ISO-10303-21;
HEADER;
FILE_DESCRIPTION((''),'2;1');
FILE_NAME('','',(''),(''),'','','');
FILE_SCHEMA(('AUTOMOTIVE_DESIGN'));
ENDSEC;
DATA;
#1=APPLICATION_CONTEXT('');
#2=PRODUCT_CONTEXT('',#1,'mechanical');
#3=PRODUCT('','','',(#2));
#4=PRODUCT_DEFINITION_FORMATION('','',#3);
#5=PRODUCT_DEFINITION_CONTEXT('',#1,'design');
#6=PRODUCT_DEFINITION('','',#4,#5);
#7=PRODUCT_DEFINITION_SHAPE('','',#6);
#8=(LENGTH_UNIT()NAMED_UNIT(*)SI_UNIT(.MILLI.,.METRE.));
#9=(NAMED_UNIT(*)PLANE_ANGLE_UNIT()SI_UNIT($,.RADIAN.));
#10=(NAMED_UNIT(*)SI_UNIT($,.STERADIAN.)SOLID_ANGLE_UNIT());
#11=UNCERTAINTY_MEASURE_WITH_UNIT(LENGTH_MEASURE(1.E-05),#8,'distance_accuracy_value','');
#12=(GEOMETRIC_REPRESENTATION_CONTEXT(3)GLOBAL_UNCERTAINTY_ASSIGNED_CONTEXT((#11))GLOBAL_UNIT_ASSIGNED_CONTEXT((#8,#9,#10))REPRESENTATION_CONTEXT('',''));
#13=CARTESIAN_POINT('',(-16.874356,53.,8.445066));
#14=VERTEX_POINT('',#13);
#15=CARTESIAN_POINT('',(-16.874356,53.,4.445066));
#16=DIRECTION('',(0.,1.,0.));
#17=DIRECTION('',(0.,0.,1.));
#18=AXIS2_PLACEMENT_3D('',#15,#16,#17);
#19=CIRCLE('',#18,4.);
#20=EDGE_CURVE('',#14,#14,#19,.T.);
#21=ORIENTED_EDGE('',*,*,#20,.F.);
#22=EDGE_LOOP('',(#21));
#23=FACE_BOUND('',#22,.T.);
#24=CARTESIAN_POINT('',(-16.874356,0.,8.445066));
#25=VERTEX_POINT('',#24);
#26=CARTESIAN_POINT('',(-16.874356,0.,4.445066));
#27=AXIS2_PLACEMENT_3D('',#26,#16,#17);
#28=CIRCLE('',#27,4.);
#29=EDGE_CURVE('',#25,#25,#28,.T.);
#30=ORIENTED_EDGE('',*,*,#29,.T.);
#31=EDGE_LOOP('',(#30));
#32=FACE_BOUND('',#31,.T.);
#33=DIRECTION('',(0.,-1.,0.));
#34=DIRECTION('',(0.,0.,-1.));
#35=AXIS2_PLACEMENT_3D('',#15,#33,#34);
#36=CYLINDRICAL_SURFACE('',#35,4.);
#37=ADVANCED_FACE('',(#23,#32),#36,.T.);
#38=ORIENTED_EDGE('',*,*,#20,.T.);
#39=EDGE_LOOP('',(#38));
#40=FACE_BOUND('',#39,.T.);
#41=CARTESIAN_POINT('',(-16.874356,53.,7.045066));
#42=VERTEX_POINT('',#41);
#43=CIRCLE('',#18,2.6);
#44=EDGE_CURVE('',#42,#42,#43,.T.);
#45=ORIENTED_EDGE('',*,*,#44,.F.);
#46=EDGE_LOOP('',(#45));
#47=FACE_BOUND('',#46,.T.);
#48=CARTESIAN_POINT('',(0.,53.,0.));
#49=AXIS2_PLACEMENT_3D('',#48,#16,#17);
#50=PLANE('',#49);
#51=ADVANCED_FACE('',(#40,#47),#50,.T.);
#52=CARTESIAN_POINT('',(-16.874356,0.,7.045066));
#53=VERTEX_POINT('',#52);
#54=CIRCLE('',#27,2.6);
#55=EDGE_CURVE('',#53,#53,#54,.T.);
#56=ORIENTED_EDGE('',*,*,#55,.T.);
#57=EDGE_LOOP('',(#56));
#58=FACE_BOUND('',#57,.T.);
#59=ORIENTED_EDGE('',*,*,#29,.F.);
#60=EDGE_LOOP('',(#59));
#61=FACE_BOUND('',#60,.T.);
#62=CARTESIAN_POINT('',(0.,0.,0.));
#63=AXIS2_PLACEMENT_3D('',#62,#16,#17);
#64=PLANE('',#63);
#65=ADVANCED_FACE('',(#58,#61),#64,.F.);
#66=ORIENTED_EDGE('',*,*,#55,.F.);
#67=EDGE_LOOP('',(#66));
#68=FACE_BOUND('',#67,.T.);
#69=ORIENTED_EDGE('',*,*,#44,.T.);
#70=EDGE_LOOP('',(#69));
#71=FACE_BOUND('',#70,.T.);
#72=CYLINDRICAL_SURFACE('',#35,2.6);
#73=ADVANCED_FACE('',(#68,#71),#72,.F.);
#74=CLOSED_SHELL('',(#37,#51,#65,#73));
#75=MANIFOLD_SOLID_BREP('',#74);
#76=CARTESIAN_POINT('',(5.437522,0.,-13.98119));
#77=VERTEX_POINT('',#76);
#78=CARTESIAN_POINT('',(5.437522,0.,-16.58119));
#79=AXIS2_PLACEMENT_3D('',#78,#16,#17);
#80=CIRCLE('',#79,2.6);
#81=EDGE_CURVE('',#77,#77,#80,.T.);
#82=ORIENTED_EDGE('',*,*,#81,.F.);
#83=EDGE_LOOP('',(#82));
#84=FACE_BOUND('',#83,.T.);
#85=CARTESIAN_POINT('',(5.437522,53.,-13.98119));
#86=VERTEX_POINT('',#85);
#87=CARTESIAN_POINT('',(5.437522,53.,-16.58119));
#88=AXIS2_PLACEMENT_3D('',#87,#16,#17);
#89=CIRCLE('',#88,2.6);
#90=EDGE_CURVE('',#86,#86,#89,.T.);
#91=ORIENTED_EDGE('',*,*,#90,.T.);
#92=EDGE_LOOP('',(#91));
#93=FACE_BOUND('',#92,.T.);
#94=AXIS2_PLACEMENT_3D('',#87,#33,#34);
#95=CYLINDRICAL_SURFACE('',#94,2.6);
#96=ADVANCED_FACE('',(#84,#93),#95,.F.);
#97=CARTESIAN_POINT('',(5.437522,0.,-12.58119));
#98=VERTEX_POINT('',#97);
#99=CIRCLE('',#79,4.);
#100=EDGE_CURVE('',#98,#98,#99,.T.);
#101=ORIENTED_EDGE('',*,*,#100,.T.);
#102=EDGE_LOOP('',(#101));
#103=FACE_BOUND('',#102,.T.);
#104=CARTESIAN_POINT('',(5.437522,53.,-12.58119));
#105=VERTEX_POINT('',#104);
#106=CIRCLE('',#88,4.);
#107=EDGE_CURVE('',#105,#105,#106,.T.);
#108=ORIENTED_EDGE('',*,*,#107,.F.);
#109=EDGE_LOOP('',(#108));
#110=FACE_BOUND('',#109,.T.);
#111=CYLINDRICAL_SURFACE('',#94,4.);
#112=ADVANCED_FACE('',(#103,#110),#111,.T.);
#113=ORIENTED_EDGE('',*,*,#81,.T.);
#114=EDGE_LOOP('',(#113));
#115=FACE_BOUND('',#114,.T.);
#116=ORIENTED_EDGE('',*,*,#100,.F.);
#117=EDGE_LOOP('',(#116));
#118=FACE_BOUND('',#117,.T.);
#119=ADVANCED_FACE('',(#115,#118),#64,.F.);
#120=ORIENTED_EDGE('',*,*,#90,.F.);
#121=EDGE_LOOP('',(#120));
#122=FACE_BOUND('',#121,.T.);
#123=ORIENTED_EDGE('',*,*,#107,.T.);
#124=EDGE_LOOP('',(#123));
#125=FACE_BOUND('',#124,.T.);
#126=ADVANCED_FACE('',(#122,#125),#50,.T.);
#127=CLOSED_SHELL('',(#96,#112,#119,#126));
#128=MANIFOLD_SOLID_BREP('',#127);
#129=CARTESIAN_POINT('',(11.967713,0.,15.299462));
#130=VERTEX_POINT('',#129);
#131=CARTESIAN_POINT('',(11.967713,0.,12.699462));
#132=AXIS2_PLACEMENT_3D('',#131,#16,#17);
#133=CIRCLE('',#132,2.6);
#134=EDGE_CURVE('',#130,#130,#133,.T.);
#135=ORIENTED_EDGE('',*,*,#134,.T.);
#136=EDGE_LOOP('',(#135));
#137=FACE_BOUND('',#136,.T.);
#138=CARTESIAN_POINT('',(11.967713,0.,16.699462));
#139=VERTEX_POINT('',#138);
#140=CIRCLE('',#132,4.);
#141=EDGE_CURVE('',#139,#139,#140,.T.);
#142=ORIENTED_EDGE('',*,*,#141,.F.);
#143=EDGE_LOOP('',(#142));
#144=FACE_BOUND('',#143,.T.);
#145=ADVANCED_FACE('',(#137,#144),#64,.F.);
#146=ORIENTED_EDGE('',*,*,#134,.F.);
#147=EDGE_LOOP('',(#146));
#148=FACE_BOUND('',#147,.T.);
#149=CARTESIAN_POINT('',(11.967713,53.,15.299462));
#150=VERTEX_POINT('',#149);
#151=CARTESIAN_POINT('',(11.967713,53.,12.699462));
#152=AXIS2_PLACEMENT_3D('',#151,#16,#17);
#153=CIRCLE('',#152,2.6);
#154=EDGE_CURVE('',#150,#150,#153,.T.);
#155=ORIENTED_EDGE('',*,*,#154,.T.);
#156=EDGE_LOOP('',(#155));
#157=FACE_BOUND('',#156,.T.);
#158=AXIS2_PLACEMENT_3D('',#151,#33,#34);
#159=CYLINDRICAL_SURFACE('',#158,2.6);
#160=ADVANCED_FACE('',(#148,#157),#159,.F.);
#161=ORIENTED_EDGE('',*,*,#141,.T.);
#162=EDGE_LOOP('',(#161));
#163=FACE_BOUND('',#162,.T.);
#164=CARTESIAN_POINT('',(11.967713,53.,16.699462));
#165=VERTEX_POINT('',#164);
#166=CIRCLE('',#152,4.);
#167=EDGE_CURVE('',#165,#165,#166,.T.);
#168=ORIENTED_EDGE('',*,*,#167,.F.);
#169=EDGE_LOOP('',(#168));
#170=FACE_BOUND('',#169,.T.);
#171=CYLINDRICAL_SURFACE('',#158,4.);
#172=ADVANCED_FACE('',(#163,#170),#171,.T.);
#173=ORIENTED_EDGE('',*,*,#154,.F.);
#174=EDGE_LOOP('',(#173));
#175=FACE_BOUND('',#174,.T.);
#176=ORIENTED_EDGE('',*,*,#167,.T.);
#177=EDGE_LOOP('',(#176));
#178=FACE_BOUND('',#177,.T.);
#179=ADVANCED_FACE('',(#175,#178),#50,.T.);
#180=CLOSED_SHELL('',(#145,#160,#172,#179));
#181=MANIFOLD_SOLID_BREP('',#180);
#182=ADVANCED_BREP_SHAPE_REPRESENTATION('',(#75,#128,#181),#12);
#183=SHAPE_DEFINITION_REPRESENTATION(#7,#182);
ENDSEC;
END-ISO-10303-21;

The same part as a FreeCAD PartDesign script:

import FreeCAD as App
import Part
import Sketcher
from FreeCAD import Vector

doc = App.newDocument("Part")
body = doc.addObject("PartDesign::Body", "Body")

# Sketch on XZ plane
sketch1 = doc.addObject("Sketcher::SketchObject", "Sketch")
body.addObject(sketch1)
sketch1.AttachmentSupport = (doc.XZ_Plane, [""])
sketch1.MapMode = "FlatFace"
sketch1.addGeometry(Part.Circle(Vector(-16.9, 4.4, 0), Vector(0, 0, 1), 4), False)
sketch1.addGeometry(Part.Circle(Vector(-16.9, 4.4, 0), Vector(0, 0, 1), 2.6), False)
sketch1.addConstraint(Sketcher.Constraint("Coincident", 1, 3, 0, 3))
sketch1.addConstraint(Sketcher.Constraint("Diameter", 0, 8.0))
sketch1.addConstraint(Sketcher.Constraint("Diameter", 1, 5.2))
sketch1.addConstraint(Sketcher.Constraint("DistanceX", 0, 3, -1, 1, 16.874356))
sketch1.addConstraint(Sketcher.Constraint("DistanceY", -1, 1, 0, 3, 4.445066))
pad1 = doc.addObject("PartDesign::Pad", "Pad")
body.addObject(pad1)
pad1.Profile = sketch1
pad1.Length = 53
pad1.Reversed = True
body2 = doc.addObject("PartDesign::Body", "Body001")

# Sketch on XZ plane
sketch2 = doc.addObject("Sketcher::SketchObject", "Sketch001")
body2.addObject(sketch2)
sketch2.AttachmentSupport = (doc.getObject("XZ_Plane001"), [""])
sketch2.MapMode = "FlatFace"
sketch2.addGeometry(Part.Circle(Vector(12, 12.7, 0), Vector(0, 0, 1), 4), False)
sketch2.addGeometry(Part.Circle(Vector(12, 12.7, 0), Vector(0, 0, 1), 2.6), False)
sketch2.addConstraint(Sketcher.Constraint("Coincident", 1, 3, 0, 3))
sketch2.addConstraint(Sketcher.Constraint("Diameter", 0, 8.0))
sketch2.addConstraint(Sketcher.Constraint("Diameter", 1, 5.2))
sketch2.addConstraint(Sketcher.Constraint("DistanceX", -1, 1, 0, 3, 11.967713))
sketch2.addConstraint(Sketcher.Constraint("DistanceY", -1, 1, 0, 3, 12.699462))
pad2 = doc.addObject("PartDesign::Pad", "Pad001")
body2.addObject(pad2)
pad2.Profile = sketch2
pad2.Length = 53
pad2.Reversed = True
body3 = doc.addObject("PartDesign::Body", "Body002")

# Sketch on XZ plane
sketch3 = doc.addObject("Sketcher::SketchObject", "Sketch002")
body3.addObject(sketch3)
sketch3.AttachmentSupport = (doc.getObject("XZ_Plane002"), [""])
sketch3.MapMode = "FlatFace"
sketch3.addGeometry(Part.Circle(Vector(5.4, -16.6, 0), Vector(0, 0, 1), 4), False)
sketch3.addGeometry(Part.Circle(Vector(5.4, -16.6, 0), Vector(0, 0, 1), 2.6), False)
sketch3.addConstraint(Sketcher.Constraint("Coincident", 1, 3, 0, 3))
sketch3.addConstraint(Sketcher.Constraint("Diameter", 0, 8.0))
sketch3.addConstraint(Sketcher.Constraint("Diameter", 1, 5.2))
sketch3.addConstraint(Sketcher.Constraint("DistanceX", -1, 1, 0, 3, 5.437522))
sketch3.addConstraint(Sketcher.Constraint("DistanceY", 0, 3, -1, 1, 16.58119))
pad3 = doc.addObject("PartDesign::Pad", "Pad002")
body3.addObject(pad3)
pad3.Profile = sketch3
pad3.Length = 53
pad3.Reversed = True

doc.recompute()
